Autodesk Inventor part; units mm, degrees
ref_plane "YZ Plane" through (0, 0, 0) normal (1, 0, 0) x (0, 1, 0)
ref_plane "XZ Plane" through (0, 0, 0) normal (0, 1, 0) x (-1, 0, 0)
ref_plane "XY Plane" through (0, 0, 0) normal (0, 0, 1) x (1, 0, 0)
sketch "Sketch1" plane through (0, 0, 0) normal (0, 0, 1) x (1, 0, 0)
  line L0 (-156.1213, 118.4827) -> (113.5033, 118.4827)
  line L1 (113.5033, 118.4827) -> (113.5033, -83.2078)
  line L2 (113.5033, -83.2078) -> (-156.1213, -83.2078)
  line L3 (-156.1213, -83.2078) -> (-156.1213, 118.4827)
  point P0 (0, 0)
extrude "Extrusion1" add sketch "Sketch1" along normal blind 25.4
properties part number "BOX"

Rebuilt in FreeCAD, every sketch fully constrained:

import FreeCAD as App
import Part
import Sketcher
from FreeCAD import Vector
Q = App.Units.Quantity

doc = App.newDocument("Part")
params = doc.addObject("Spreadsheet::Sheet", "Params")
for row, (alias, value) in enumerate([
    ("pad1_length", "1 in"),
], start=1):
    params.set(f"A{row}", alias)
    params.set(f"B{row}", "=" + value)
    params.setAlias(f"B{row}", alias)

body = doc.addObject("PartDesign::Body", "Body")

# Sketch on XY plane
sketch1 = doc.addObject("Sketcher::SketchObject", "Sketch")
body.addObject(sketch1)
sketch1.AttachmentSupport = (doc.XY_Plane, [""])
sketch1.MapMode = "FlatFace"
sketch1.addGeometry(Part.LineSegment(Vector(114, 118, 0), Vector(-156, 118, 0)), False)
sketch1.addGeometry(Part.LineSegment(Vector(-156, 118, 0), Vector(-156, -83, 0)), False)
sketch1.addGeometry(Part.LineSegment(Vector(-156, -83, 0), Vector(114, -83, 0)), False)
sketch1.addGeometry(Part.LineSegment(Vector(114, -83, 0), Vector(114, 118, 0)), False)
sketch1.addConstraint(Sketcher.Constraint("Coincident", 0, 2, 1, 1))
sketch1.addConstraint(Sketcher.Constraint("Coincident", 1, 2, 2, 1))
sketch1.addConstraint(Sketcher.Constraint("Coincident", 2, 2, 3, 1))
sketch1.addConstraint(Sketcher.Constraint("Coincident", 3, 2, 0, 1))
sketch1.addConstraint(Sketcher.Constraint("Horizontal", 0))
sketch1.addConstraint(Sketcher.Constraint("Vertical", 1))
sketch1.addConstraint(Sketcher.Constraint("Horizontal", 2))
sketch1.addConstraint(Sketcher.Constraint("Vertical", 3))
sketch1.addConstraint(Sketcher.Constraint("DistanceX", 0, 2, 0, 1, 269.6246))
sketch1.addConstraint(Sketcher.Constraint("DistanceY", 1, 2, 1, 1, 201.6905))
sketch1.addConstraint(Sketcher.Constraint("DistanceX", 0, 2, -1, 1, Q("6.1465 in")))
sketch1.addConstraint(Sketcher.Constraint("DistanceY", 1, 2, -1, 1, Q("3.2759 in")))
pad1 = doc.addObject("PartDesign::Pad", "Pad")
body.addObject(pad1)
pad1.Profile = sketch1
pad1.setExpression("Length", "Params.pad1_length")

doc.recompute()
